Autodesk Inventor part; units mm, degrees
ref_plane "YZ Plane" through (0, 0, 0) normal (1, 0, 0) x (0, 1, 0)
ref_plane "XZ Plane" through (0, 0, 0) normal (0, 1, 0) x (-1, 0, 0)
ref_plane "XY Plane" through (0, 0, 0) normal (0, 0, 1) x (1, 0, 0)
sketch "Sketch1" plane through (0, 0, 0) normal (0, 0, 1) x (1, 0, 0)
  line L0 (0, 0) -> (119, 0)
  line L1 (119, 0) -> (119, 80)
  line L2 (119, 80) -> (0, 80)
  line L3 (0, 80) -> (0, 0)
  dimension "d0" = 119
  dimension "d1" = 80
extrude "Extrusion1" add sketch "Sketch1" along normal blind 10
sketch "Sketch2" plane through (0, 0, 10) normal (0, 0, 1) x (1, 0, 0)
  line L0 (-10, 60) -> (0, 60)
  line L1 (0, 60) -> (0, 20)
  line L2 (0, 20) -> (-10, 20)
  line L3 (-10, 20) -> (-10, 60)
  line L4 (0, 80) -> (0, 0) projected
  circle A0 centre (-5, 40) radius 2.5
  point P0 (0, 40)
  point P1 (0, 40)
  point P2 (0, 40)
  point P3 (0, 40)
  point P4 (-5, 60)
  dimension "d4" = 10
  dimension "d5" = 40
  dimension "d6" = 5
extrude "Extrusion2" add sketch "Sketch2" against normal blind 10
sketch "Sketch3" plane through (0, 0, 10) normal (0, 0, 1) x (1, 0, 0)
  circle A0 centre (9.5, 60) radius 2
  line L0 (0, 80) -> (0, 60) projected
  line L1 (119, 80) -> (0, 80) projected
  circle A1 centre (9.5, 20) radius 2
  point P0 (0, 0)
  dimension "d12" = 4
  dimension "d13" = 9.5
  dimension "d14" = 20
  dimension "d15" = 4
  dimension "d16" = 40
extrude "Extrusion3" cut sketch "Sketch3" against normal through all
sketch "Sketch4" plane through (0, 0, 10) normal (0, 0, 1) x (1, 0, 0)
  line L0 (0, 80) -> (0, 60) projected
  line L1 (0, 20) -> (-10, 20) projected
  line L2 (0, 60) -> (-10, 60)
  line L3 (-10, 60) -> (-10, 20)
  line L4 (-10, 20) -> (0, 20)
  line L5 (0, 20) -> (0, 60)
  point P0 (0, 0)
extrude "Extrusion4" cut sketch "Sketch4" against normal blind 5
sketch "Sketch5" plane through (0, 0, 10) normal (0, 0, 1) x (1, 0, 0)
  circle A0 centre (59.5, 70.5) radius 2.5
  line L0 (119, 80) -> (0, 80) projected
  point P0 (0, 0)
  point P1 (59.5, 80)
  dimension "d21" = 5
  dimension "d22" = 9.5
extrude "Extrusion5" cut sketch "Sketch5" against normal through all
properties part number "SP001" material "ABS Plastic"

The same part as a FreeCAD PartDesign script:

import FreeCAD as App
import Part
import Sketcher
Q = App.Units.Quantity

doc = App.newDocument("Part")
body = doc.addObject("PartDesign::Body", "Body")

sketch1 = doc.addObject("Sketcher::SketchObject", "Sketch")
body.addObject(sketch1)
sketch1.AttachmentSupport = (doc.XY_Plane, [""])
sketch1.MapMode = "FlatFace"
sketch1.addGeometry(Part.LineSegment(App.Vector(0, 80, 0), App.Vector(0, 0, 0)), False)
sketch1.addGeometry(Part.LineSegment(App.Vector(0, 0, 0), App.Vector(119, 0, 0)), False)
sketch1.addGeometry(Part.LineSegment(App.Vector(119, 0, 0), App.Vector(119, 80, 0)), False)
sketch1.addGeometry(Part.LineSegment(App.Vector(119, 80, 0), App.Vector(0, 80, 0)), False)
sketch1.addConstraint(Sketcher.Constraint("Coincident", 0, 2, 1, 1))
sketch1.addConstraint(Sketcher.Constraint("Coincident", 1, 2, 2, 1))
sketch1.addConstraint(Sketcher.Constraint("Coincident", 2, 2, 3, 1))
sketch1.addConstraint(Sketcher.Constraint("Coincident", 3, 2, 0, 1))
sketch1.addConstraint(Sketcher.Constraint("Vertical", 0))
sketch1.addConstraint(Sketcher.Constraint("Horizontal", 1))
sketch1.addConstraint(Sketcher.Constraint("Vertical", 2))
sketch1.addConstraint(Sketcher.Constraint("Horizontal", 3))
sketch1.addConstraint(Sketcher.Constraint("Coincident", 0, 2, -1, 1))
sketch1.addConstraint(Sketcher.Constraint("DistanceX", 1, 1, 1, 2, Q("119 mm")))
sketch1.addConstraint(Sketcher.Constraint("DistanceY", 0, 2, 0, 1, Q("80 mm")))
pad1 = doc.addObject("PartDesign::Pad", "Pad")
body.addObject(pad1)
pad1.Profile = sketch1
pad1.Length = 10

sketch2 = doc.addObject("Sketcher::SketchObject", "Sketch001")
body.addObject(sketch2)
sketch2.AttachmentSupport = (doc.XY_Plane, [""])
sketch2.MapMode = "FlatFace"
sketch2.AttachmentOffset = App.Placement(App.Vector(0, 0, 10), App.Rotation())
sketch2.addGeometry(Part.LineSegment(App.Vector(0, 60, 0), App.Vector(-10, 60, 0)), False)
sketch2.addGeometry(Part.LineSegment(App.Vector(-10, 60, 0), App.Vector(-10, 20, 0)), False)
sketch2.addGeometry(Part.LineSegment(App.Vector(-10, 20, 0), App.Vector(0, 20, 0)), False)
sketch2.addGeometry(Part.LineSegment(App.Vector(0, 20, 0), App.Vector(0, 60, 0)), False)
sketch2.addGeometry(Part.Circle(App.Vector(-5, 40, 0), App.Vector(0, 0, 1), 2.5), False)
sketch2.addConstraint(Sketcher.Constraint("Coincident", 0, 2, 1, 1))
sketch2.addConstraint(Sketcher.Constraint("Coincident", 1, 2, 2, 1))
sketch2.addConstraint(Sketcher.Constraint("Coincident", 2, 2, 3, 1))
sketch2.addConstraint(Sketcher.Constraint("Coincident", 3, 2, 0, 1))
sketch2.addConstraint(Sketcher.Constraint("Horizontal", 0))
sketch2.addConstraint(Sketcher.Constraint("Vertical", 1))
sketch2.addConstraint(Sketcher.Constraint("Horizontal", 2))
sketch2.addConstraint(Sketcher.Constraint("Vertical", 3))
sketch2.addConstraint(Sketcher.Constraint("PointOnObject", 2, 2, -2))
sketch2.addConstraint(Sketcher.Constraint("Diameter", 4, Q("5 mm")))
sketch2.addConstraint(Sketcher.Constraint("DistanceX", 0, 2, 0, 1, Q("10 mm")))
sketch2.addConstraint(Sketcher.Constraint("DistanceY", 1, 2, 1, 1, Q("40 mm")))
sketch2.addConstraint(Sketcher.Constraint("DistanceX", 4, 3, -1, 1, Q("5 mm")))
sketch2.addConstraint(Sketcher.Constraint("DistanceY", -1, 1, 4, 3, Q("40 mm")))
sketch2.addConstraint(Sketcher.Constraint("DistanceY", -1, 1, 0, 2, Q("60 mm")))
pad2 = doc.addObject("PartDesign::Pad", "Pad001")
body.addObject(pad2)
pad2.Profile = sketch2
pad2.Length = 10
pad2.Reversed = True

sketch3 = doc.addObject("Sketcher::SketchObject", "Sketch002")
body.addObject(sketch3)
sketch3.AttachmentSupport = (doc.XY_Plane, [""])
sketch3.MapMode = "FlatFace"
sketch3.AttachmentOffset = App.Placement(App.Vector(0, 0, 10), App.Rotation())
sketch3.addGeometry(Part.Circle(App.Vector(9.5, 60, 0), App.Vector(0, 0, 1), 2), False)
sketch3.addGeometry(Part.Circle(App.Vector(9.5, 20, 0), App.Vector(0, 0, 1), 2), False)
sketch3.addConstraint(Sketcher.Constraint("Equal", 0, 1))
sketch3.addConstraint(Sketcher.Constraint("Vertical", 0, 3, 1, 3))
sketch3.addConstraint(Sketcher.Constraint("Diameter", 0, Q("4 mm")))
sketch3.addConstraint(Sketcher.Constraint("DistanceY", -1, 1, 1, 3, Q("20 mm")))
sketch3.addConstraint(Sketcher.Constraint("DistanceY", 1, 3, 0, 3, Q("40 mm")))
sketch3.addConstraint(Sketcher.Constraint("DistanceX", -1, 1, 0, 3, Q("9.5 mm")))
pocket1 = doc.addObject("PartDesign::Pocket", "Pocket")
body.addObject(pocket1)
pocket1.Profile = sketch3
pocket1.Type = "ThroughAll"

sketch4 = doc.addObject("Sketcher::SketchObject", "Sketch003")
body.addObject(sketch4)
sketch4.AttachmentSupport = (doc.XY_Plane, [""])
sketch4.MapMode = "FlatFace"
sketch4.AttachmentOffset = App.Placement(App.Vector(0, 0, 10), App.Rotation())
sketch4.addGeometry(Part.LineSegment(App.Vector(-10, 20, 0), App.Vector(0, 20, 0)), False)
sketch4.addGeometry(Part.LineSegment(App.Vector(0, 20, 0), App.Vector(0, 60, 0)), False)
sketch4.addGeometry(Part.LineSegment(App.Vector(0, 60, 0), App.Vector(-10, 60, 0)), False)
sketch4.addGeometry(Part.LineSegment(App.Vector(-10, 60, 0), App.Vector(-10, 20, 0)), False)
sketch4.addConstraint(Sketcher.Constraint("Coincident", 0, 2, 1, 1))
sketch4.addConstraint(Sketcher.Constraint("Coincident", 1, 2, 2, 1))
sketch4.addConstraint(Sketcher.Constraint("Coincident", 2, 2, 3, 1))
sketch4.addConstraint(Sketcher.Constraint("Coincident", 3, 2, 0, 1))
sketch4.addConstraint(Sketcher.Constraint("Horizontal", 0))
sketch4.addConstraint(Sketcher.Constraint("Vertical", 1))
sketch4.addConstraint(Sketcher.Constraint("Horizontal", 2))
sketch4.addConstraint(Sketcher.Constraint("Vertical", 3))
sketch4.addConstraint(Sketcher.Constraint("PointOnObject", 0, 2, -2))
sketch4.addConstraint(Sketcher.Constraint("DistanceX", 0, 1, 0, 2, Q("10 mm")))
sketch4.addConstraint(Sketcher.Constraint("DistanceY", 1, 1, 1, 2, Q("40 mm")))
sketch4.addConstraint(Sketcher.Constraint("DistanceY", -1, 1, 0, 2, Q("20 mm")))
pocket2 = doc.addObject("PartDesign::Pocket", "Pocket001")
body.addObject(pocket2)
pocket2.Profile = sketch4
pocket2.Length = 5

sketch5 = doc.addObject("Sketcher::SketchObject", "Sketch004")
body.addObject(sketch5)
sketch5.AttachmentSupport = (doc.XY_Plane, [""])
sketch5.MapMode = "FlatFace"
sketch5.AttachmentOffset = App.Placement(App.Vector(0, 0, 10), App.Rotation())
sketch5.addGeometry(Part.Circle(App.Vector(59.5, 70.5, 0), App.Vector(0, 0, 1), 2.5), False)
sketch5.addConstraint(Sketcher.Constraint("Diameter", 0, Q("5 mm")))
sketch5.addConstraint(Sketcher.Constraint("DistanceX", -1, 1, 0, 3, Q("59.5 mm")))
sketch5.addConstraint(Sketcher.Constraint("DistanceY", -1, 1, 0, 3, Q("70.5 mm")))
pocket3 = doc.addObject("PartDesign::Pocket", "Pocket002")
body.addObject(pocket3)
pocket3.Profile = sketch5
pocket3.Type = "ThroughAll"

doc.recompute()
